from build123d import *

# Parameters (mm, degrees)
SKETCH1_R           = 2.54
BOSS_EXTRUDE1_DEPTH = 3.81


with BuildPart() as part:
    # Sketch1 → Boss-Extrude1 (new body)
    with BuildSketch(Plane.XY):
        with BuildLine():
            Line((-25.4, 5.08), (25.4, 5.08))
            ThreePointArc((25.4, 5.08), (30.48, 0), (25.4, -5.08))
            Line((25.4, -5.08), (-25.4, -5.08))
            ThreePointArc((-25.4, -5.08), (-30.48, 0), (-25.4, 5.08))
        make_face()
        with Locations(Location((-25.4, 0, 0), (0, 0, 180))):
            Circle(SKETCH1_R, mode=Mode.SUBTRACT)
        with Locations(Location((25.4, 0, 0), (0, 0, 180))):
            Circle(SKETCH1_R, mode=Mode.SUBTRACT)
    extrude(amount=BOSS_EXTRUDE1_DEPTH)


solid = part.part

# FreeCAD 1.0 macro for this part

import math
import FreeCAD as App
import Part
import Sketcher
from FreeCAD import Vector
Q = App.Units.Quantity

doc = App.newDocument("Part")
params = doc.addObject("Spreadsheet::Sheet", "Params")
for row, (alias, value) in enumerate([
    ("sketch1_diameter", "0.2 in"),
    ("sketch1_radius", "0.2 in"),
    ("sketch1_width", "2 in"),
    ("pad1_length", "0.15 in"),
], start=1):
    params.set(f"A{row}", alias)
    params.set(f"B{row}", "=" + value)
    params.setAlias(f"B{row}", alias)

body = doc.addObject("PartDesign::Body", "Body")

sketch1 = body.newObject("Sketcher::SketchObject", "Sketch")
sketch1.AttachmentSupport = (doc.getObject("XY_Plane"), [""])
sketch1.MapMode = "FlatFace"
sketch1.addGeometry([
    Part.LineSegment(Vector(25.4, 5.1, 0), Vector(-25.4, 5.1, 0)),
    Part.ArcOfCircle(Part.Circle(Vector(-25.4, 0, 0), Vector(0, 0, 1), 5.1), math.radians(90), math.radians(270)),
    Part.LineSegment(Vector(-25.4, -5.1, 0), Vector(25.4, -5.1, 0)),
    Part.ArcOfCircle(Part.Circle(Vector(25.4, 0, 0), Vector(0, 0, 1), 5.1), math.radians(-90), math.radians(90)),
    Part.Circle(Vector(25.4, 0, 0), Vector(0, 0, 1), 2.5),
    Part.Circle(Vector(-25.4, 0, 0), Vector(0, 0, 1), 2.5),
], False)
sketch1.addConstraint([
    Sketcher.Constraint("Tangent", 0, 2, 1, 1),
    Sketcher.Constraint("Tangent", 1, 2, 2, 1),
    Sketcher.Constraint("Tangent", 2, 2, 3, 1),
    Sketcher.Constraint("Tangent", 3, 2, 0, 1),
    Sketcher.Constraint("Horizontal", 0),
    Sketcher.Constraint("Horizontal", 2),
    Sketcher.Constraint("Coincident", 4, 3, 3, 3),
    Sketcher.Constraint("Coincident", 5, 3, 1, 3),
    Sketcher.Constraint("Equal", 4, 5),
    Sketcher.Constraint("Symmetric", 1, 3, 3, 3, -1, 1),
    Sketcher.Constraint("Diameter", 4, Q("0.2 in")),
    Sketcher.Constraint("Radius", 1, Q("0.2 in")),
    Sketcher.Constraint("DistanceX", 0, 2, 0, 1, Q("2 in")),
])
sketch1.setExpression("Constraints[10]", "Params.sketch1_diameter")
sketch1.setExpression("Constraints[11]", "Params.sketch1_radius")
sketch1.setExpression("Constraints[12]", "Params.sketch1_width")
pad1 = body.newObject("PartDesign::Pad", "Pad")
pad1.Profile = sketch1
pad1.setExpression("Length", "Params.pad1_length")

doc.recompute()
